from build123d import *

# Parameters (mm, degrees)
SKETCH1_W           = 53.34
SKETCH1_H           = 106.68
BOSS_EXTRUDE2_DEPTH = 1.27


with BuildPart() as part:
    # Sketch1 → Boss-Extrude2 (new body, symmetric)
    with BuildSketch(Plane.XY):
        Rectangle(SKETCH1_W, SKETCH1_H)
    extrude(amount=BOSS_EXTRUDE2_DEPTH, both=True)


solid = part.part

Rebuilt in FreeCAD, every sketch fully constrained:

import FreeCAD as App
import Part
import Sketcher
Q = App.Units.Quantity


def add_polygon(sketch, points):
    """Adds a closed chain of lines whose ends are joined by coincident constraints."""
    first, n = sketch.GeometryCount, len(points)
    for a, b in zip(points, points[1:] + points[:1]):
        sketch.addGeometry(Part.LineSegment(App.Vector(*a, 0), App.Vector(*b, 0)), False)
    for i in range(n):
        sketch.addConstraint(Sketcher.Constraint("Coincident", first + i, 2, first + (i + 1) % n, 1))

doc = App.newDocument("Part")
body = doc.addObject("PartDesign::Body", "Body")

sketch1 = doc.addObject("Sketcher::SketchObject", "Sketch")
body.addObject(sketch1)
sketch1.AttachmentSupport = (doc.XY_Plane, [""])
sketch1.MapMode = "FlatFace"
add_polygon(sketch1, [(-27, 53), (-27, -53), (27, -53), (27, 53)])
sketch1.addConstraint([
    Sketcher.Constraint("Vertical", 0),
    Sketcher.Constraint("Horizontal", 1),
    Sketcher.Constraint("Vertical", 2),
    Sketcher.Constraint("Horizontal", 3),
    Sketcher.Constraint("Symmetric", 0, 2, 2, 2, -1, 1),
    Sketcher.Constraint("DistanceX", 1, 1, 1, 2, Q("2.1 in")),
    Sketcher.Constraint("DistanceY", 0, 2, 0, 1, Q("4.2 in")),
])
pad1 = doc.addObject("PartDesign::Pad", "Pad")
body.addObject(pad1)
pad1.Profile = sketch1
pad1.Length = Q("0.1 in")
pad1.Midplane = True

doc.recompute()
